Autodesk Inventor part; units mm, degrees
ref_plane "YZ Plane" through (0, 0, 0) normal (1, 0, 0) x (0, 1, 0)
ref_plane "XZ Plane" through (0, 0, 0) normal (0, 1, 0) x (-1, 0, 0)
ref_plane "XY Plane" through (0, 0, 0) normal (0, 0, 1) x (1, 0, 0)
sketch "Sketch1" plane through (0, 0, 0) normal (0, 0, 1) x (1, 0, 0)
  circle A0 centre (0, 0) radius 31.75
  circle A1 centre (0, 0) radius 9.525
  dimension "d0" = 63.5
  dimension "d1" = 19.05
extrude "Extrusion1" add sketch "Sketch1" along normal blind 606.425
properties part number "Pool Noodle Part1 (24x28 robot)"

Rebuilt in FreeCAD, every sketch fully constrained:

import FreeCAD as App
import Part
import Sketcher
from FreeCAD import Vector
Q = App.Units.Quantity

doc = App.newDocument("Part")
body = doc.addObject("PartDesign::Body", "Body")

# Sketch on XY plane
sketch1 = doc.addObject("Sketcher::SketchObject", "Sketch")
body.addObject(sketch1)
sketch1.AttachmentSupport = (doc.XY_Plane, [""])
sketch1.MapMode = "FlatFace"
sketch1.addGeometry([
    Part.Circle(Vector(0, 0, 0), Vector(0, 0, 1), 32),
    Part.Circle(Vector(0, 0, 0), Vector(0, 0, 1), 10),
], False)
sketch1.addConstraint([
    Sketcher.Constraint("Coincident", 0, 3, -1, 1),
    Sketcher.Constraint("Coincident", 1, 3, -1, 1),
    Sketcher.Constraint("Diameter", 0, Q("2.5 in")),
    Sketcher.Constraint("Diameter", 1, Q("0.75 in")),
])
pad1 = doc.addObject("PartDesign::Pad", "Pad")
body.addObject(pad1)
pad1.Profile = sketch1
pad1.Length = Q("23.875 in")

doc.recompute()
